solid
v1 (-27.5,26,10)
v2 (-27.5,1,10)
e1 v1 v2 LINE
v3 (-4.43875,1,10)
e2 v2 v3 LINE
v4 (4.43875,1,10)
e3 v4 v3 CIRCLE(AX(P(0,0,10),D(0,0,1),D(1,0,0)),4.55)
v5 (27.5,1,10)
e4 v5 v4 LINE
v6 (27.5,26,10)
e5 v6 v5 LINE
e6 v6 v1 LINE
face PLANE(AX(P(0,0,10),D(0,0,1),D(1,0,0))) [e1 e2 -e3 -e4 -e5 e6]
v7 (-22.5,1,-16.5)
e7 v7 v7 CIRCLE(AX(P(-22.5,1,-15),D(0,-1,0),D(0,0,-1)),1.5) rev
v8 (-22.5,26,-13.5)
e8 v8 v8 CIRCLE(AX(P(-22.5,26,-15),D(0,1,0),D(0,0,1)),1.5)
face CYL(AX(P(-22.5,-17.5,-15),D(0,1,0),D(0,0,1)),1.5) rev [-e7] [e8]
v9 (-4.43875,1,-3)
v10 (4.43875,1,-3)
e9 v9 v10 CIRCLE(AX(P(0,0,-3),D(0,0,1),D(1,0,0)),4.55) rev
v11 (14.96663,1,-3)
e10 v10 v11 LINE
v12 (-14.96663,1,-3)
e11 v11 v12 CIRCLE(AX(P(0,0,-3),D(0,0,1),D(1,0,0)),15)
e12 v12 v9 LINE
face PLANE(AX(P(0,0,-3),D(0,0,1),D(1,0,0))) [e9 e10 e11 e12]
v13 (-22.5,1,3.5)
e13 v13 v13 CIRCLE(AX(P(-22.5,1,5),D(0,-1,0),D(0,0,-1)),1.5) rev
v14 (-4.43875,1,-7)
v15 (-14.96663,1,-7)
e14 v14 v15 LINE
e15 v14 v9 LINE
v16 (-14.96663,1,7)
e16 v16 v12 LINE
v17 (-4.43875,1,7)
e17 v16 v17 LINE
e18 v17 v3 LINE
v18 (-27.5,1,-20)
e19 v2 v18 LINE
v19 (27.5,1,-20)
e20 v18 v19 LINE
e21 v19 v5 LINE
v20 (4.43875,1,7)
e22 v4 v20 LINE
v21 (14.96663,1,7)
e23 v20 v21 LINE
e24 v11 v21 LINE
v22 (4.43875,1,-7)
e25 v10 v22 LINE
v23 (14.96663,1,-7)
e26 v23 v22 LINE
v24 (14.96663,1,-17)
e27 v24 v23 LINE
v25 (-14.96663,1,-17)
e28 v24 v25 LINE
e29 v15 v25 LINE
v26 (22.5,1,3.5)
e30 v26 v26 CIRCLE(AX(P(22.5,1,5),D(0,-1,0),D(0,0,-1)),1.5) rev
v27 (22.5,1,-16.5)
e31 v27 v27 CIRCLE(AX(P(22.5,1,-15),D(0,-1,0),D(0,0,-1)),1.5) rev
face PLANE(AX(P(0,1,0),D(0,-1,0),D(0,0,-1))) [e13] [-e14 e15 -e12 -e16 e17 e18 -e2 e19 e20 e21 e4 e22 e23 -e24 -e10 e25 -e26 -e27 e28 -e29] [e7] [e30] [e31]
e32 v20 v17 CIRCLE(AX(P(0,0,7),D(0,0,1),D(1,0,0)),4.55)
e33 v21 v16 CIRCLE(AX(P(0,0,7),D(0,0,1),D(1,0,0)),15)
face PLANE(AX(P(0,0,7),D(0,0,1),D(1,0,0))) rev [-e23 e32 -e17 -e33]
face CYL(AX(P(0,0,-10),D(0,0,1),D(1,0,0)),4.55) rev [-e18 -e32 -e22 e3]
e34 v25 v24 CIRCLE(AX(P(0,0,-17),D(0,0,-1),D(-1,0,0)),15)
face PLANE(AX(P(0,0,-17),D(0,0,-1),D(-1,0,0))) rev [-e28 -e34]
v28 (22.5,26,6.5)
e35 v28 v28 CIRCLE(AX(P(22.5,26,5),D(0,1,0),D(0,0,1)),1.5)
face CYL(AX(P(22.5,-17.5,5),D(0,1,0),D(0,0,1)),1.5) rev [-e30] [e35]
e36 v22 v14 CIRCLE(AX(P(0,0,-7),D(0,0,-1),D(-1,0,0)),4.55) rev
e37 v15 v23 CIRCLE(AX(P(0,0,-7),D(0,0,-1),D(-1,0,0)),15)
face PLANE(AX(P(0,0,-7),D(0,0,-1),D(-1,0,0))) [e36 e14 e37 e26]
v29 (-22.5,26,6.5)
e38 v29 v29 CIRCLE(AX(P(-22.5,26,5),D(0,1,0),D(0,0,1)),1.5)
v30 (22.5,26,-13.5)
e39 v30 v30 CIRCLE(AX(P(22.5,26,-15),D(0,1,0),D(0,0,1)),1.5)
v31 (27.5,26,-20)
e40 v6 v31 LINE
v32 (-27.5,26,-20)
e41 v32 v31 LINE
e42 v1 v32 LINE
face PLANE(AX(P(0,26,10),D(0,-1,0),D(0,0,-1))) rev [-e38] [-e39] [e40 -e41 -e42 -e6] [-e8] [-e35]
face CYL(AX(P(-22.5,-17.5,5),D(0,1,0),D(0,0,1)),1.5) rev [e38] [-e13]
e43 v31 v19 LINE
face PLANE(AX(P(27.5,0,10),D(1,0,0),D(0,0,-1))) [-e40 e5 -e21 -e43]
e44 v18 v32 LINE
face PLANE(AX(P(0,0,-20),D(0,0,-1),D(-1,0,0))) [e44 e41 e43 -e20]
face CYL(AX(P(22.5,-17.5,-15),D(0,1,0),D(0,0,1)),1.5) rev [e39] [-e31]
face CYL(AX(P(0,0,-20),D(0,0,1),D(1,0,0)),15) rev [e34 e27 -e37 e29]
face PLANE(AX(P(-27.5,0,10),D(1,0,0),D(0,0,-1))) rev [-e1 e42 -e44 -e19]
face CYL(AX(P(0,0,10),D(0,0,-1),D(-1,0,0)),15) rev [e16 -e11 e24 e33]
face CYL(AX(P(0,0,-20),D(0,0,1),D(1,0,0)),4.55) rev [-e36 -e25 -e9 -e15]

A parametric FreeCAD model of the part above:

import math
import FreeCAD as App
import Part
import Sketcher

V = App.Vector
Q = App.Units.Quantity


def add_polygon(sketch, points):
    """Adds a closed chain of lines whose ends are joined by coincident constraints."""
    first, n = sketch.GeometryCount, len(points)
    for a, b in zip(points, points[1:] + points[:1]):
        sketch.addGeometry(Part.LineSegment(App.Vector(*a, 0), App.Vector(*b, 0)), False)
    for i in range(n):
        sketch.addConstraint(Sketcher.Constraint("Coincident", first + i, 2, first + (i + 1) % n, 1))

doc = App.newDocument("Part")
body = doc.addObject("PartDesign::Body", "Body")

# Sketch on XY plane
sketch1 = doc.addObject("Sketcher::SketchObject", "Sketch")
body.addObject(sketch1)
sketch1.AttachmentSupport = (doc.XY_Plane, [""])
sketch1.MapMode = "FlatFace"
sketch1.addGeometry(Part.LineSegment(V(17.5, 0, 0), V(17.5, 21, 0)), False)
sketch1.addGeometry(Part.LineSegment(V(17.5, 21, 0), V(27.5, 21, 0)), False)
sketch1.addGeometry(Part.LineSegment(V(27.5, 21, 0), V(27.5, 26, 0)), False)
sketch1.addGeometry(Part.LineSegment(V(27.5, 26, 0), V(-27.5, 26, 0)), False)
sketch1.addGeometry(Part.LineSegment(V(-27.5, 26, 0), V(-27.5, 21, 0)), False)
sketch1.addGeometry(Part.LineSegment(V(-27.5, 21, 0), V(-17.5, 21, 0)), False)
sketch1.addGeometry(Part.LineSegment(V(-17.5, 21, 0), V(-17.5, 0, 0)), False)
sketch1.addGeometry(Part.ArcOfCircle(Part.Circle(V(0, 0, 0), V(0, 0, 1), 17.5), math.radians(180), math.radians(360)), False)
sketch1.addGeometry(Part.Circle(V(0, 0, 0), V(0, 0, 1), 15), False)
sketch1.addConstraint(Sketcher.Constraint("Coincident", 0, 2, 1, 1))
sketch1.addConstraint(Sketcher.Constraint("Coincident", 1, 2, 2, 1))
sketch1.addConstraint(Sketcher.Constraint("Coincident", 2, 2, 3, 1))
sketch1.addConstraint(Sketcher.Constraint("Coincident", 3, 2, 4, 1))
sketch1.addConstraint(Sketcher.Constraint("Coincident", 4, 2, 5, 1))
sketch1.addConstraint(Sketcher.Constraint("Coincident", 5, 2, 6, 1))
sketch1.addConstraint(Sketcher.Constraint("Tangent", 6, 2, 7, 1))
sketch1.addConstraint(Sketcher.Constraint("Tangent", 7, 2, 0, 1))
sketch1.addConstraint(Sketcher.Constraint("Vertical", 0))
sketch1.addConstraint(Sketcher.Constraint("Horizontal", 1))
sketch1.addConstraint(Sketcher.Constraint("Vertical", 2))
sketch1.addConstraint(Sketcher.Constraint("Horizontal", 3))
sketch1.addConstraint(Sketcher.Constraint("Vertical", 4))
sketch1.addConstraint(Sketcher.Constraint("Horizontal", 5))
sketch1.addConstraint(Sketcher.Constraint("Vertical", 6))
sketch1.addConstraint(Sketcher.Constraint("Coincident", 7, 3, -1, 1))
sketch1.addConstraint(Sketcher.Constraint("Coincident", 8, 3, -1, 1))
sketch1.addConstraint(Sketcher.Constraint("Symmetric", 1, 2, 4, 2, -2))
sketch1.addConstraint(Sketcher.Constraint("Diameter", 8, Q("30 mm")))
sketch1.addConstraint(Sketcher.Constraint("Radius", 7, Q("17.5 mm")))
sketch1.addConstraint(Sketcher.Constraint("DistanceX", 1, 1, 1, 2, Q("10 mm")))
sketch1.addConstraint(Sketcher.Constraint("DistanceY", 0, 1, 0, 2, Q("21 mm")))
sketch1.addConstraint(Sketcher.Constraint("DistanceY", 2, 1, 2, 2, Q("5 mm")))
pad1 = doc.addObject("PartDesign::Pad", "Pad")
body.addObject(pad1)
pad1.Profile = sketch1
pad1.Length = 10

# Sketch on XY plane
sketch2 = doc.addObject("Sketcher::SketchObject", "Sketch001")
body.addObject(sketch2)
sketch2.AttachmentSupport = (doc.XY_Plane, [""])
sketch2.MapMode = "FlatFace"
sketch2.AttachmentOffset = App.Placement(V(0, 0, -10), App.Rotation())
sketch2.addGeometry(Part.LineSegment(V(-17.5, 0, 0), V(-17.5, 21, 0)), False)
sketch2.addGeometry(Part.LineSegment(V(-17.5, 21, 0), V(-27.5, 21, 0)), False)
sketch2.addGeometry(Part.LineSegment(V(-27.5, 21, 0), V(-27.5, 26, 0)), False)
sketch2.addGeometry(Part.LineSegment(V(-27.5, 26, 0), V(27.5, 26, 0)), False)
sketch2.addGeometry(Part.LineSegment(V(27.5, 26, 0), V(27.5, 21, 0)), False)
sketch2.addGeometry(Part.LineSegment(V(27.5, 21, 0), V(17.5, 21, 0)), False)
sketch2.addGeometry(Part.LineSegment(V(17.5, 21, 0), V(17.5, 0, 0)), False)
sketch2.addGeometry(Part.ArcOfCircle(Part.Circle(V(0, 0, 0), V(0, 0, 1), 17.5), math.radians(180), math.radians(360)), False)
sketch2.addConstraint(Sketcher.Constraint("Coincident", 0, 2, 1, 1))
sketch2.addConstraint(Sketcher.Constraint("Coincident", 1, 2, 2, 1))
sketch2.addConstraint(Sketcher.Constraint("Coincident", 2, 2, 3, 1))
sketch2.addConstraint(Sketcher.Constraint("Coincident", 3, 2, 4, 1))
sketch2.addConstraint(Sketcher.Constraint("Coincident", 4, 2, 5, 1))
sketch2.addConstraint(Sketcher.Constraint("Coincident", 5, 2, 6, 1))
sketch2.addConstraint(Sketcher.Constraint("Tangent", 6, 2, 7, 2))
sketch2.addConstraint(Sketcher.Constraint("Tangent", 7, 1, 0, 1))
sketch2.addConstraint(Sketcher.Constraint("Vertical", 0))
sketch2.addConstraint(Sketcher.Constraint("Horizontal", 1))
sketch2.addConstraint(Sketcher.Constraint("Vertical", 2))
sketch2.addConstraint(Sketcher.Constraint("Horizontal", 3))
sketch2.addConstraint(Sketcher.Constraint("Vertical", 4))
sketch2.addConstraint(Sketcher.Constraint("Horizontal", 5))
sketch2.addConstraint(Sketcher.Constraint("Vertical", 6))
sketch2.addConstraint(Sketcher.Constraint("Coincident", 7, 3, -1, 1))
sketch2.addConstraint(Sketcher.Constraint("Symmetric", 1, 2, 4, 2, -2))
sketch2.addConstraint(Sketcher.Constraint("Radius", 7, Q("17.5 mm")))
sketch2.addConstraint(Sketcher.Constraint("DistanceX", 1, 2, 1, 1, Q("10 mm")))
sketch2.addConstraint(Sketcher.Constraint("DistanceY", 0, 1, 0, 2, Q("21 mm")))
sketch2.addConstraint(Sketcher.Constraint("DistanceY", 2, 1, 2, 2, Q("5 mm")))
pad2 = doc.addObject("PartDesign::Pad", "Pad001")
body.addObject(pad2)
pad2.Profile = sketch2
pad2.Length = 10

# Sketch on XY plane
sketch3 = doc.addObject("Sketcher::SketchObject", "Sketch002")
body.addObject(sketch3)
sketch3.AttachmentSupport = (doc.XY_Plane, [""])
sketch3.MapMode = "FlatFace"
sketch3.AttachmentOffset = App.Placement(V(0, 0, -20), App.Rotation())
sketch3.addGeometry(Part.LineSegment(V(-17.5, 0, 0), V(-17.5, 21, 0)), False)
sketch3.addGeometry(Part.LineSegment(V(-17.5, 21, 0), V(-27.5, 21, 0)), False)
sketch3.addGeometry(Part.LineSegment(V(-27.5, 21, 0), V(-27.5, 26, 0)), False)
sketch3.addGeometry(Part.LineSegment(V(-27.5, 26, 0), V(27.5, 26, 0)), False)
sketch3.addGeometry(Part.LineSegment(V(27.5, 26, 0), V(27.5, 21, 0)), False)
sketch3.addGeometry(Part.LineSegment(V(27.5, 21, 0), V(17.5, 21, 0)), False)
sketch3.addGeometry(Part.LineSegment(V(17.5, 21, 0), V(17.5, 0, 0)), False)
sketch3.addGeometry(Part.ArcOfCircle(Part.Circle(V(0, 0, 0), V(0, 0, 1), 17.5), math.radians(180), math.radians(360)), False)
sketch3.addGeometry(Part.Circle(V(0, 0, 0), V(0, 0, 1), 15), False)
sketch3.addConstraint(Sketcher.Constraint("Coincident", 0, 2, 1, 1))
sketch3.addConstraint(Sketcher.Constraint("Coincident", 1, 2, 2, 1))
sketch3.addConstraint(Sketcher.Constraint("Coincident", 2, 2, 3, 1))
sketch3.addConstraint(Sketcher.Constraint("Coincident", 3, 2, 4, 1))
sketch3.addConstraint(Sketcher.Constraint("Coincident", 4, 2, 5, 1))
sketch3.addConstraint(Sketcher.Constraint("Coincident", 5, 2, 6, 1))
sketch3.addConstraint(Sketcher.Constraint("Tangent", 6, 2, 7, 2))
sketch3.addConstraint(Sketcher.Constraint("Tangent", 7, 1, 0, 1))
sketch3.addConstraint(Sketcher.Constraint("Vertical", 0))
sketch3.addConstraint(Sketcher.Constraint("Horizontal", 1))
sketch3.addConstraint(Sketcher.Constraint("Vertical", 2))
sketch3.addConstraint(Sketcher.Constraint("Horizontal", 3))
sketch3.addConstraint(Sketcher.Constraint("Vertical", 4))
sketch3.addConstraint(Sketcher.Constraint("Horizontal", 5))
sketch3.addConstraint(Sketcher.Constraint("Vertical", 6))
sketch3.addConstraint(Sketcher.Constraint("Coincident", 7, 3, -1, 1))
sketch3.addConstraint(Sketcher.Constraint("Coincident", 8, 3, -1, 1))
sketch3.addConstraint(Sketcher.Constraint("Symmetric", 1, 2, 4, 2, -2))
sketch3.addConstraint(Sketcher.Constraint("Diameter", 8, Q("30 mm")))
sketch3.addConstraint(Sketcher.Constraint("Radius", 7, Q("17.5 mm")))
sketch3.addConstraint(Sketcher.Constraint("DistanceX", 1, 2, 1, 1, Q("10 mm")))
sketch3.addConstraint(Sketcher.Constraint("DistanceY", 0, 1, 0, 2, Q("21 mm")))
sketch3.addConstraint(Sketcher.Constraint("DistanceY", 2, 1, 2, 2, Q("5 mm")))
pad3 = doc.addObject("PartDesign::Pad", "Pad002")
body.addObject(pad3)
pad3.Profile = sketch3
pad3.Length = 10

# Sketch on XY plane
sketch4 = doc.addObject("Sketcher::SketchObject", "Sketch003")
body.addObject(sketch4)
sketch4.AttachmentSupport = (doc.XY_Plane, [""])
sketch4.MapMode = "FlatFace"
sketch4.addGeometry(Part.Circle(V(0, 0, 0), V(0, 0, 1), 4.55), False)
sketch4.addConstraint(Sketcher.Constraint("Coincident", 0, 3, -1, 1))
sketch4.addConstraint(Sketcher.Constraint("Diameter", 0, Q("9.1 mm")))
pocket1 = doc.addObject("PartDesign::Pocket", "Pocket")
body.addObject(pocket1)
pocket1.Profile = sketch4
pocket1.Type = "ThroughAll"

# Sketch on XZ plane
sketch5 = doc.addObject("Sketcher::SketchObject", "Sketch004")
body.addObject(sketch5)
sketch5.AttachmentSupport = (doc.XZ_Plane, [""])
sketch5.MapMode = "FlatFace"
sketch5.AttachmentOffset = App.Placement(V(0, 0, -26), App.Rotation())
sketch5.addGeometry(Part.Circle(V(-22.5, -15, 0), V(0, 0, 1), 1.5), False)
sketch5.addGeometry(Part.Circle(V(-22.5, 5, 0), V(0, 0, 1), 1.5), False)
sketch5.addGeometry(Part.Circle(V(22.5, -15, 0), V(0, 0, 1), 1.5), False)
sketch5.addGeometry(Part.Circle(V(22.5, 5, 0), V(0, 0, 1), 1.5), False)
sketch5.addConstraint(Sketcher.Constraint("Equal", 0, 1))
sketch5.addConstraint(Sketcher.Constraint("Equal", 1, 2))
sketch5.addConstraint(Sketcher.Constraint("Equal", 2, 3))
sketch5.addConstraint(Sketcher.Constraint("Symmetric", 0, 3, 2, 3, -2))
sketch5.addConstraint(Sketcher.Constraint("Symmetric", 1, 3, 3, 3, -2))
sketch5.addConstraint(Sketcher.Constraint("Vertical", 0, 3, 1, 3))
sketch5.addConstraint(Sketcher.Constraint("Diameter", 0, Q("3 mm")))
sketch5.addConstraint(Sketcher.Constraint("DistanceY", 0, 3, -1, 1, Q("15 mm")))
sketch5.addConstraint(Sketcher.Constraint("DistanceY", -1, 1, 1, 3, Q("5 mm")))
sketch5.addConstraint(Sketcher.Constraint("DistanceX", 0, 3, 2, 3, Q("45 mm")))
pocket2 = doc.addObject("PartDesign::Pocket", "Pocket001")
body.addObject(pocket2)
pocket2.Profile = sketch5
pocket2.Type = "ThroughAll"
pocket2.Reversed = True

# Sketch on XY plane
sketch6 = doc.addObject("Sketcher::SketchObject", "Sketch005")
body.addObject(sketch6)
sketch6.AttachmentSupport = (doc.XY_Plane, [""])
sketch6.MapMode = "FlatFace"
sketch6.AttachmentOffset = App.Placement(V(0, 0, -20), App.Rotation())
sketch6.addGeometry(Part.Circle(V(0, 0, 0), V(0, 0, 1), 15), False)
sketch6.addConstraint(Sketcher.Constraint("Coincident", 0, 3, -1, 1))
sketch6.addConstraint(Sketcher.Constraint("Diameter", 0, Q("30 mm")))
pocket3 = doc.addObject("PartDesign::Pocket", "Pocket002")
body.addObject(pocket3)
pocket3.Profile = sketch6
pocket3.Length = 13
pocket3.Reversed = True

# Sketch on XY plane
sketch7 = doc.addObject("Sketcher::SketchObject", "Sketch006")
body.addObject(sketch7)
sketch7.AttachmentSupport = (doc.XY_Plane, [""])
sketch7.MapMode = "FlatFace"
sketch7.AttachmentOffset = App.Placement(V(0, 0, -3), App.Rotation())
sketch7.addGeometry(Part.Circle(V(0, 0, 0), V(0, 0, 1), 15), False)
sketch7.addConstraint(Sketcher.Constraint("Coincident", 0, 3, -1, 1))
sketch7.addConstraint(Sketcher.Constraint("Diameter", 0, Q("30 mm")))
pocket4 = doc.addObject("PartDesign::Pocket", "Pocket003")
body.addObject(pocket4)
pocket4.Profile = sketch7
pocket4.Length = 3
pocket4.Reversed = True

# Sketch on XZ plane
sketch8 = doc.addObject("Sketcher::SketchObject", "Sketch007")
body.addObject(sketch8)
sketch8.AttachmentSupport = (doc.XZ_Plane, [""])
sketch8.MapMode = "FlatFace"
sketch8.AttachmentOffset = App.Placement(V(0, 0, -21), App.Rotation())
add_polygon(sketch8, [(17.5, 10), (17.5, -20), (27.5, -20), (27.5, 10)])  # lines 0-3
sketch8.addGeometry(Part.Circle(V(22.5, -15, 0), V(0, 0, 1), 1.5), False)  # 4
sketch8.addGeometry(Part.Circle(V(22.5, 5, 0), V(0, 0, 1), 1.5), False)  # 5
add_polygon(sketch8, [(-27.5, 10), (-27.5, -20), (-17.5, -20), (-17.5, 10)])  # lines 6-9
sketch8.addGeometry(Part.Circle(V(-22.5, -15, 0), V(0, 0, 1), 1.5), False)  # 10
sketch8.addGeometry(Part.Circle(V(-22.5, 5, 0), V(0, 0, 1), 1.5), False)  # 11
sketch8.addConstraint(Sketcher.Constraint("Vertical", 0))
sketch8.addConstraint(Sketcher.Constraint("Horizontal", 1))
sketch8.addConstraint(Sketcher.Constraint("Vertical", 2))
sketch8.addConstraint(Sketcher.Constraint("Horizontal", 3))
sketch8.addConstraint(Sketcher.Constraint("Vertical", 6))
sketch8.addConstraint(Sketcher.Constraint("Horizontal", 7))
sketch8.addConstraint(Sketcher.Constraint("Vertical", 8))
sketch8.addConstraint(Sketcher.Constraint("Horizontal", 9))
sketch8.addConstraint(Sketcher.Constraint("Equal", 4, 5))
sketch8.addConstraint(Sketcher.Constraint("Equal", 5, 10))
sketch8.addConstraint(Sketcher.Constraint("Equal", 10, 11))
sketch8.addConstraint(Sketcher.Constraint("Symmetric", 4, 3, 10, 3, -2))
sketch8.addConstraint(Sketcher.Constraint("Symmetric", 5, 3, 11, 3, -2))
sketch8.addConstraint(Sketcher.Constraint("Symmetric", 1, 2, 6, 2, -2))
sketch8.addConstraint(Sketcher.Constraint("Symmetric", 3, 2, 8, 2, -2))
sketch8.addConstraint(Sketcher.Constraint("Vertical", 4, 3, 5, 3))
sketch8.addConstraint(Sketcher.Constraint("Diameter", 4, Q("3 mm")))
sketch8.addConstraint(Sketcher.Constraint("DistanceX", 1, 1, 1, 2, Q("10 mm")))
sketch8.addConstraint(Sketcher.Constraint("DistanceY", 0, 2, 0, 1, Q("30 mm")))
sketch8.addConstraint(Sketcher.Constraint("DistanceY", 4, 3, -1, 1, Q("15 mm")))
sketch8.addConstraint(Sketcher.Constraint("DistanceY", -1, 1, 5, 3, Q("5 mm")))
sketch8.addConstraint(Sketcher.Constraint("DistanceY", 0, 2, -1, 1, Q("20 mm")))
sketch8.addConstraint(Sketcher.Constraint("DistanceX", 10, 3, 4, 3, Q("45 mm")))
sketch8.addConstraint(Sketcher.Constraint("DistanceX", 0, 2, 4, 3, Q("5 mm")))
pad4 = doc.addObject("PartDesign::Pad", "Pad003")
body.addObject(pad4)
pad4.Profile = sketch8
pad4.Length = 45

# Sketch on XZ plane
sketch9 = doc.addObject("Sketcher::SketchObject", "Sketch008")
body.addObject(sketch9)
sketch9.AttachmentSupport = (doc.XZ_Plane, [""])
sketch9.MapMode = "FlatFace"
sketch9.AttachmentOffset = App.Placement(V(0, 0, 24), App.Rotation())
add_polygon(sketch9, [(-17.5, 10), (-17.5, -20), (17.5, -20), (17.5, 10)])  # lines 0-3
sketch9.addConstraint(Sketcher.Constraint("Vertical", 0))
sketch9.addConstraint(Sketcher.Constraint("Horizontal", 1))
sketch9.addConstraint(Sketcher.Constraint("Vertical", 2))
sketch9.addConstraint(Sketcher.Constraint("Horizontal", 3))
sketch9.addConstraint(Sketcher.Constraint("DistanceX", 1, 1, 1, 2, Q("35 mm")))
sketch9.addConstraint(Sketcher.Constraint("DistanceY", 0, 2, 0, 1, Q("30 mm")))
sketch9.addConstraint(Sketcher.Constraint("DistanceY", 0, 2, -1, 1, Q("20 mm")))
sketch9.addConstraint(Sketcher.Constraint("DistanceX", 0, 2, -1, 1, Q("17.5 mm")))
pad5 = doc.addObject("PartDesign::Pad", "Pad004")
body.addObject(pad5)
pad5.Profile = sketch9
pad5.Type = "UpToFirst"
pad5.Reversed = True

# Sketch on XY plane
sketch10 = doc.addObject("Sketcher::SketchObject", "Sketch009")
body.addObject(sketch10)
sketch10.AttachmentSupport = (doc.XY_Plane, [""])
sketch10.MapMode = "FlatFace"
sketch10.AttachmentOffset = App.Placement(V(0, 0, -20), App.Rotation())
sketch10.addGeometry(Part.Circle(V(0, 0, 0), V(0, 0, 1), 15), False)
sketch10.addConstraint(Sketcher.Constraint("Coincident", 0, 3, -1, 1))
sketch10.addConstraint(Sketcher.Constraint("Diameter", 0, Q("30 mm")))
pad6 = doc.addObject("PartDesign::Pad", "Pad005")
body.addObject(pad6)
pad6.Profile = sketch10
pad6.Length = 3

# Sketch on XY plane
sketch11 = doc.addObject("Sketcher::SketchObject", "Sketch010")
body.addObject(sketch11)
sketch11.AttachmentSupport = (doc.XY_Plane, [""])
sketch11.MapMode = "FlatFace"
sketch11.AttachmentOffset = App.Placement(V(0, 0, 7), App.Rotation())
sketch11.addGeometry(Part.Circle(V(0, 0, 0), V(0, 0, 1), 15), False)
sketch11.addConstraint(Sketcher.Constraint("Coincident", 0, 3, -1, 1))
sketch11.addConstraint(Sketcher.Constraint("Diameter", 0, Q("30 mm")))
pad7 = doc.addObject("PartDesign::Pad", "Pad006")
body.addObject(pad7)
pad7.Profile = sketch11
pad7.Length = 3

# Sketch on XY plane
sketch12 = doc.addObject("Sketcher::SketchObject", "Sketch011")
body.addObject(sketch12)
sketch12.AttachmentSupport = (doc.XY_Plane, [""])
sketch12.MapMode = "FlatFace"
sketch12.AttachmentOffset = App.Placement(V(0, 0, 10), App.Rotation())
sketch12.addGeometry(Part.Circle(V(0, 0, 0), V(0, 0, 1), 4.55), False)
sketch12.addConstraint(Sketcher.Constraint("Coincident", 0, 3, -1, 1))
sketch12.addConstraint(Sketcher.Constraint("Diameter", 0, Q("9.1 mm")))
pocket5 = doc.addObject("PartDesign::Pocket", "Pocket004")
body.addObject(pocket5)
pocket5.Profile = sketch12
pocket5.Length = 20

# Sketch on XZ plane
sketch13 = doc.addObject("Sketcher::SketchObject", "Sketch012")
body.addObject(sketch13)
sketch13.AttachmentSupport = (doc.XZ_Plane, [""])
sketch13.MapMode = "FlatFace"
sketch13.AttachmentOffset = App.Placement(V(0, 0, 24), App.Rotation())
add_polygon(sketch13, [(-27.5, 10), (-27.5, -20), (27.5, -20), (27.5, 10)])  # lines 0-3
sketch13.addConstraint(Sketcher.Constraint("Vertical", 0))
sketch13.addConstraint(Sketcher.Constraint("Horizontal", 1))
sketch13.addConstraint(Sketcher.Constraint("Vertical", 2))
sketch13.addConstraint(Sketcher.Constraint("Horizontal", 3))
sketch13.addConstraint(Sketcher.Constraint("DistanceX", 1, 1, 1, 2, Q("55 mm")))
sketch13.addConstraint(Sketcher.Constraint("DistanceY", 0, 2, 0, 1, Q("30 mm")))
sketch13.addConstraint(Sketcher.Constraint("DistanceY", 0, 2, -1, 1, Q("20 mm")))
sketch13.addConstraint(Sketcher.Constraint("DistanceX", 0, 2, -1, 1, Q("27.5 mm")))
pocket6 = doc.addObject("PartDesign::Pocket", "Pocket005")
body.addObject(pocket6)
pocket6.Profile = sketch13
pocket6.Length = 25

doc.recompute()
